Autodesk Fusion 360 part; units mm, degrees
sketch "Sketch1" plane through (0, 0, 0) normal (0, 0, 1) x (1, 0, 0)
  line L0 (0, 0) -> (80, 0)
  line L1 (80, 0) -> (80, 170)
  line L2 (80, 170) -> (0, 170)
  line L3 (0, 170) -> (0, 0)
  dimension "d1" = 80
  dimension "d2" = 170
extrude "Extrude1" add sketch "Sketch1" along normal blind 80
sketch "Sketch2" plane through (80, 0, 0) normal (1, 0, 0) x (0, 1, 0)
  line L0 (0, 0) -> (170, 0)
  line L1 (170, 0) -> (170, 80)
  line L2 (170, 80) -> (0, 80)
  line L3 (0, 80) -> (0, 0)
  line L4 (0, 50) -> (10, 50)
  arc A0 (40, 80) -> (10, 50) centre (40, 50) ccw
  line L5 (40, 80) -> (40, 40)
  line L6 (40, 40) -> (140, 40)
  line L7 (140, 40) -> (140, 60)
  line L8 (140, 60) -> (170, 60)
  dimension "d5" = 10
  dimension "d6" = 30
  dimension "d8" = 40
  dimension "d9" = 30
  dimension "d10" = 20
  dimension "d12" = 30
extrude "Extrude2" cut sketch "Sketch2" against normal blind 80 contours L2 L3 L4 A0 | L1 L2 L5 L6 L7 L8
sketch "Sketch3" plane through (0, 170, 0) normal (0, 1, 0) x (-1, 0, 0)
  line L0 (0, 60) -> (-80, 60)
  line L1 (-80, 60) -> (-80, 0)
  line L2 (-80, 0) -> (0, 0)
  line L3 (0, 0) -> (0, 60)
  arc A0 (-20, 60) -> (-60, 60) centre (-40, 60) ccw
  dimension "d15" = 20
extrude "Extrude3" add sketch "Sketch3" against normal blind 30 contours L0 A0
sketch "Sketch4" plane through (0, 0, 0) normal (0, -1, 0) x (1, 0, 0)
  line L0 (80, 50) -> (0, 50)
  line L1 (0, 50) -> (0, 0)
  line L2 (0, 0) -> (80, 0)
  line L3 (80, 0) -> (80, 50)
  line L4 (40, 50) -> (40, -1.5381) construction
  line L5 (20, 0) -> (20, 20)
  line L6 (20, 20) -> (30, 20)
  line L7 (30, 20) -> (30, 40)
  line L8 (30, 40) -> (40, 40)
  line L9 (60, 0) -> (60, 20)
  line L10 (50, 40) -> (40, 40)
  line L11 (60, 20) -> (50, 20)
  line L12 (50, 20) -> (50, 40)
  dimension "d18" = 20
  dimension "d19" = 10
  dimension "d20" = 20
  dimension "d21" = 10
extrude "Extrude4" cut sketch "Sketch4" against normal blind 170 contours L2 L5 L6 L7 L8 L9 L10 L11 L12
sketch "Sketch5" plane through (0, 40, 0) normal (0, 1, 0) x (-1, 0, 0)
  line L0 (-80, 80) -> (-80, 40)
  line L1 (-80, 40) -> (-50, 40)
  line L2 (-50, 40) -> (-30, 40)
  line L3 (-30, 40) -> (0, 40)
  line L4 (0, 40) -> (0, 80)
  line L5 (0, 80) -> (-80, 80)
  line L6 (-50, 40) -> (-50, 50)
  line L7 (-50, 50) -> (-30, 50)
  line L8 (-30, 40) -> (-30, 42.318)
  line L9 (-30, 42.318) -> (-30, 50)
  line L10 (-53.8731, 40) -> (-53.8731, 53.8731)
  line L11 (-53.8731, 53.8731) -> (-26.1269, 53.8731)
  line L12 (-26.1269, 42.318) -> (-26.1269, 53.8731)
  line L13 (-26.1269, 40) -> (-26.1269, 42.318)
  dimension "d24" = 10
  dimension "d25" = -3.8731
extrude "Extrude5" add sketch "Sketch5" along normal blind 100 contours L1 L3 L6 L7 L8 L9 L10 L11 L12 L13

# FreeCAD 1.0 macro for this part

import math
import FreeCAD as App
import Part
import Sketcher

V = App.Vector

doc = App.newDocument("Part")
params = doc.addObject("Spreadsheet::Sheet", "Params")
for row, (alias, value) in enumerate([
    ("sketch1_width", "80 mm"),
    ("sketch1_height", "170 mm"),
    ("pad1_length", "80 mm"),
    ("sketch2_radius", "30 mm"),
    ("sketch2_width", "10 mm"),
    ("sketch2_width2", "130 mm"),
    ("pocket1_length", "80 mm"),
    ("sketch3_radius", "20 mm"),
    ("pad2_length", "30 mm"),
    ("sketch4_width", "10 mm"),
    ("sketch4_width2", "20 mm"),
    ("pocket2_length", "170 mm"),
    ("sketch5_height", "10 mm"),
    ("sketch5_width", "20 mm"),
    ("pad3_length", "100 mm"),
], start=1):
    params.set(f"A{row}", alias)
    params.set(f"B{row}", "=" + value)
    params.setAlias(f"B{row}", alias)

body = doc.addObject("PartDesign::Body", "Body")

# Sketch on XY plane
sketch1 = body.newObject("Sketcher::SketchObject", "Sketch")
sketch1.AttachmentSupport = (doc.getObject("XY_Plane"), [""])
sketch1.MapMode = "FlatFace"
sketch1.addGeometry(Part.LineSegment(V(0, 170, 0), V(0, 0, 0)), False)
sketch1.addGeometry(Part.LineSegment(V(0, 0, 0), V(80, 0, 0)), False)
sketch1.addGeometry(Part.LineSegment(V(80, 0, 0), V(80, 170, 0)), False)
sketch1.addGeometry(Part.LineSegment(V(80, 170, 0), V(0, 170, 0)), False)
sketch1.addConstraint(Sketcher.Constraint("Coincident", 0, 2, 1, 1))
sketch1.addConstraint(Sketcher.Constraint("Coincident", 1, 2, 2, 1))
sketch1.addConstraint(Sketcher.Constraint("Coincident", 2, 2, 3, 1))
sketch1.addConstraint(Sketcher.Constraint("Coincident", 3, 2, 0, 1))
sketch1.addConstraint(Sketcher.Constraint("Vertical", 0))
sketch1.addConstraint(Sketcher.Constraint("Horizontal", 1))
sketch1.addConstraint(Sketcher.Constraint("Vertical", 2))
sketch1.addConstraint(Sketcher.Constraint("Horizontal", 3))
sketch1.addConstraint(Sketcher.Constraint("Coincident", 0, 2, -1, 1))
sketch1.addConstraint(Sketcher.Constraint("DistanceX", 1, 1, 1, 2, 80.0))
sketch1.addConstraint(Sketcher.Constraint("DistanceY", 0, 2, 0, 1, 170.0))
sketch1.setExpression("Constraints[9]", "Params.sketch1_width")
sketch1.setExpression("Constraints[10]", "Params.sketch1_height")
pad1 = body.newObject("PartDesign::Pad", "Pad")
pad1.Profile = sketch1
pad1.setExpression("Length", "Params.pad1_length")

# Sketch on YZ plane
sketch2 = body.newObject("Sketcher::SketchObject", "Sketch001")
sketch2.AttachmentSupport = (doc.getObject("YZ_Plane"), [""])
sketch2.MapMode = "FlatFace"
sketch2.AttachmentOffset = App.Placement(V(0, 0, 80), App.Rotation())
sketch2.addGeometry(Part.LineSegment(V(0, 80, 0), V(0, 50, 0)), False)
sketch2.addGeometry(Part.LineSegment(V(0, 50, 0), V(10, 50, 0)), False)
sketch2.addGeometry(Part.ArcOfCircle(Part.Circle(V(40, 50, 0), V(0, 0, 1), 30), math.radians(90), math.radians(180)), False)
sketch2.addGeometry(Part.LineSegment(V(40, 80, 0), V(0, 80, 0)), False)
sketch2.addGeometry(Part.LineSegment(V(140, 60, 0), V(170, 60, 0)), False)
sketch2.addGeometry(Part.LineSegment(V(170, 60, 0), V(170, 80, 0)), False)
sketch2.addGeometry(Part.LineSegment(V(170, 80, 0), V(40, 80, 0)), False)
sketch2.addGeometry(Part.LineSegment(V(40, 80, 0), V(40, 40, 0)), False)
sketch2.addGeometry(Part.LineSegment(V(40, 40, 0), V(140, 40, 0)), False)
sketch2.addGeometry(Part.LineSegment(V(140, 40, 0), V(140, 60, 0)), False)
sketch2.addConstraint(Sketcher.Constraint("Coincident", 0, 2, 1, 1))
sketch2.addConstraint(Sketcher.Constraint("Coincident", 1, 2, 2, 2))
sketch2.addConstraint(Sketcher.Constraint("Tangent", 2, 1, 3, 1))
sketch2.addConstraint(Sketcher.Constraint("Coincident", 3, 2, 0, 1))
sketch2.addConstraint(Sketcher.Constraint("Coincident", 4, 2, 5, 1))
sketch2.addConstraint(Sketcher.Constraint("Coincident", 5, 2, 6, 1))
sketch2.addConstraint(Sketcher.Constraint("Coincident", 6, 2, 7, 1))
sketch2.addConstraint(Sketcher.Constraint("Coincident", 7, 2, 8, 1))
sketch2.addConstraint(Sketcher.Constraint("Coincident", 8, 2, 9, 1))
sketch2.addConstraint(Sketcher.Constraint("Coincident", 9, 2, 4, 1))
sketch2.addConstraint(Sketcher.Constraint("Vertical", 0))
sketch2.addConstraint(Sketcher.Constraint("Horizontal", 1))
sketch2.addConstraint(Sketcher.Constraint("Horizontal", 3))
sketch2.addConstraint(Sketcher.Constraint("Horizontal", 4))
sketch2.addConstraint(Sketcher.Constraint("Vertical", 5))
sketch2.addConstraint(Sketcher.Constraint("Horizontal", 6))
sketch2.addConstraint(Sketcher.Constraint("Vertical", 7))
sketch2.addConstraint(Sketcher.Constraint("Horizontal", 8))
sketch2.addConstraint(Sketcher.Constraint("Vertical", 9))
sketch2.addConstraint(Sketcher.Constraint("Coincident", 6, 2, 2, 1))
sketch2.addConstraint(Sketcher.Constraint("PointOnObject", 0, 2, -2))
sketch2.addConstraint(Sketcher.Constraint("Horizontal", 2, 3, 0, 2))
sketch2.addConstraint(Sketcher.Constraint("Equal", 4, 0))
sketch2.addConstraint(Sketcher.Constraint("Equal", 3, 7))
sketch2.addConstraint(Sketcher.Constraint("Equal", 5, 9))
sketch2.addConstraint(Sketcher.Constraint("Radius", 2, 30.0))
sketch2.addConstraint(Sketcher.Constraint("DistanceX", 1, 1, 1, 2, 10.0))
sketch2.addConstraint(Sketcher.Constraint("DistanceY", -1, 1, 7, 2, 40.0))
sketch2.addConstraint(Sketcher.Constraint("DistanceX", 6, 2, 6, 1, 130.0))
sketch2.setExpression("Constraints[25]", "Params.sketch2_radius")
sketch2.setExpression("Constraints[26]", "Params.sketch2_width")
sketch2.setExpression("Constraints[28]", "Params.sketch2_width2")
pocket1 = body.newObject("PartDesign::Pocket", "Pocket")
pocket1.Profile = sketch2
pocket1.setExpression("Length", "Params.pocket1_length")

# Sketch on XZ plane
sketch3 = body.newObject("Sketcher::SketchObject", "Sketch002")
sketch3.AttachmentSupport = (doc.getObject("XZ_Plane"), [""])
sketch3.MapMode = "FlatFace"
sketch3.AttachmentOffset = App.Placement(V(0, 0, -170), App.Rotation())
sketch3.addGeometry(Part.LineSegment(V(60, 60, 0), V(20, 60, 0)), False)
sketch3.addGeometry(Part.ArcOfCircle(Part.Circle(V(40, 60, 0), V(0, 0, 1), 20), math.radians(0), math.radians(180)), False)
sketch3.addConstraint(Sketcher.Constraint("Coincident", 0, 1, 1, 1))
sketch3.addConstraint(Sketcher.Constraint("Coincident", 1, 2, 0, 2))
sketch3.addConstraint(Sketcher.Constraint("Horizontal", 0))
sketch3.addConstraint(Sketcher.Constraint("Horizontal", 1, 3, 0, 1))
sketch3.addConstraint(Sketcher.Constraint("Radius", 1, 20.0))
sketch3.addConstraint(Sketcher.Constraint("DistanceX", -1, 1, 1, 2, 20.0))
sketch3.addConstraint(Sketcher.Constraint("DistanceY", -1, 1, 1, 3, 60.0))
sketch3.setExpression("Constraints[4]", "Params.sketch3_radius")
pad2 = body.newObject("PartDesign::Pad", "Pad001")
pad2.Profile = sketch3
pad2.setExpression("Length", "Params.pad2_length")

# Sketch on XZ plane
sketch4 = body.newObject("Sketcher::SketchObject", "Sketch003")
sketch4.AttachmentSupport = (doc.getObject("XZ_Plane"), [""])
sketch4.MapMode = "FlatFace"
sketch4.addGeometry(Part.LineSegment(V(20, 0, 0), V(60, 0, 0)), False)
sketch4.addGeometry(Part.LineSegment(V(60, 0, 0), V(60, 20, 0)), False)
sketch4.addGeometry(Part.LineSegment(V(60, 20, 0), V(50, 20, 0)), False)
sketch4.addGeometry(Part.LineSegment(V(50, 20, 0), V(50, 40, 0)), False)
sketch4.addGeometry(Part.LineSegment(V(50, 40, 0), V(30, 40, 0)), False)
sketch4.addGeometry(Part.LineSegment(V(30, 40, 0), V(30, 20, 0)), False)
sketch4.addGeometry(Part.LineSegment(V(30, 20, 0), V(20, 20, 0)), False)
sketch4.addGeometry(Part.LineSegment(V(20, 20, 0), V(20, 0, 0)), False)
sketch4.addConstraint(Sketcher.Constraint("Coincident", 0, 2, 1, 1))
sketch4.addConstraint(Sketcher.Constraint("Coincident", 1, 2, 2, 1))
sketch4.addConstraint(Sketcher.Constraint("Coincident", 2, 2, 3, 1))
sketch4.addConstraint(Sketcher.Constraint("Coincident", 3, 2, 4, 1))
sketch4.addConstraint(Sketcher.Constraint("Coincident", 4, 2, 5, 1))
sketch4.addConstraint(Sketcher.Constraint("Coincident", 5, 2, 6, 1))
sketch4.addConstraint(Sketcher.Constraint("Coincident", 6, 2, 7, 1))
sketch4.addConstraint(Sketcher.Constraint("Coincident", 7, 2, 0, 1))
sketch4.addConstraint(Sketcher.Constraint("Horizontal", 0))
sketch4.addConstraint(Sketcher.Constraint("Vertical", 1))
sketch4.addConstraint(Sketcher.Constraint("Horizontal", 2))
sketch4.addConstraint(Sketcher.Constraint("Vertical", 3))
sketch4.addConstraint(Sketcher.Constraint("Horizontal", 4))
sketch4.addConstraint(Sketcher.Constraint("Vertical", 5))
sketch4.addConstraint(Sketcher.Constraint("Horizontal", 6))
sketch4.addConstraint(Sketcher.Constraint("Vertical", 7))
sketch4.addConstraint(Sketcher.Constraint("PointOnObject", 0, 2, -1))
sketch4.addConstraint(Sketcher.Constraint("Horizontal", 2, 2, 5, 2))
sketch4.addConstraint(Sketcher.Constraint("Equal", 2, 6))
sketch4.addConstraint(Sketcher.Constraint("Equal", 4, 1))
sketch4.addConstraint(Sketcher.Constraint("Equal", 1, 3))
sketch4.addConstraint(Sketcher.Constraint("DistanceX", 2, 2, 2, 1, 10.0))
sketch4.addConstraint(Sketcher.Constraint("DistanceX", 4, 2, 4, 1, 20.0))
sketch4.addConstraint(Sketcher.Constraint("DistanceX", -1, 1, 6, 2, 20.0))
sketch4.setExpression("Constraints[21]", "Params.sketch4_width")
sketch4.setExpression("Constraints[22]", "Params.sketch4_width2")
pocket2 = body.newObject("PartDesign::Pocket", "Pocket001")
pocket2.Profile = sketch4
pocket2.setExpression("Length", "Params.pocket2_length")

# Sketch on XZ plane
sketch5 = body.newObject("Sketcher::SketchObject", "Sketch004")
sketch5.AttachmentSupport = (doc.getObject("XZ_Plane"), [""])
sketch5.MapMode = "FlatFace"
sketch5.AttachmentOffset = App.Placement(V(0, 0, -40), App.Rotation())
sketch5.addGeometry(Part.LineSegment(V(53.9, 53.9, 0), V(53.9, 40, 0)), False)
sketch5.addGeometry(Part.LineSegment(V(53.9, 40, 0), V(50, 40, 0)), False)
sketch5.addGeometry(Part.LineSegment(V(50, 40, 0), V(50, 50, 0)), False)
sketch5.addGeometry(Part.LineSegment(V(50, 50, 0), V(30, 50, 0)), False)
sketch5.addGeometry(Part.LineSegment(V(30, 50, 0), V(30, 40, 0)), False)
sketch5.addGeometry(Part.LineSegment(V(30, 40, 0), V(26.1, 40, 0)), False)
sketch5.addGeometry(Part.LineSegment(V(26.1, 40, 0), V(26.1, 53.9, 0)), False)
sketch5.addGeometry(Part.LineSegment(V(26.1, 53.9, 0), V(53.9, 53.9, 0)), False)
sketch5.addConstraint(Sketcher.Constraint("Coincident", 0, 2, 1, 1))
sketch5.addConstraint(Sketcher.Constraint("Coincident", 1, 2, 2, 1))
sketch5.addConstraint(Sketcher.Constraint("Coincident", 2, 2, 3, 1))
sketch5.addConstraint(Sketcher.Constraint("Coincident", 3, 2, 4, 1))
sketch5.addConstraint(Sketcher.Constraint("Coincident", 4, 2, 5, 1))
sketch5.addConstraint(Sketcher.Constraint("Coincident", 5, 2, 6, 1))
sketch5.addConstraint(Sketcher.Constraint("Coincident", 6, 2, 7, 1))
sketch5.addConstraint(Sketcher.Constraint("Coincident", 7, 2, 0, 1))
sketch5.addConstraint(Sketcher.Constraint("Vertical", 0))
sketch5.addConstraint(Sketcher.Constraint("Horizontal", 1))
sketch5.addConstraint(Sketcher.Constraint("Vertical", 2))
sketch5.addConstraint(Sketcher.Constraint("Horizontal", 3))
sketch5.addConstraint(Sketcher.Constraint("Vertical", 4))
sketch5.addConstraint(Sketcher.Constraint("Horizontal", 5))
sketch5.addConstraint(Sketcher.Constraint("Vertical", 6))
sketch5.addConstraint(Sketcher.Constraint("Horizontal", 7))
sketch5.addConstraint(Sketcher.Constraint("Horizontal", 1, 2, 4, 2))
sketch5.addConstraint(Sketcher.Constraint("Equal", 1, 5))
sketch5.addConstraint(Sketcher.Constraint("DistanceY", 2, 1, 2, 2, 10.0))
sketch5.addConstraint(Sketcher.Constraint("DistanceX", 1, 2, 1, 1, 3.873))
sketch5.addConstraint(Sketcher.Constraint("DistanceX", 3, 2, 3, 1, 20.0))
sketch5.addConstraint(Sketcher.Constraint("DistanceY", -1, 1, 0, 2, 40.0))
sketch5.addConstraint(Sketcher.Constraint("DistanceX", -1, 1, 1, 2, 50.0))
sketch5.addConstraint(Sketcher.Constraint("DistanceY", 3, 2, 6, 2, 3.873))
sketch5.setExpression("Constraints[18]", "Params.sketch5_height")
sketch5.setExpression("Constraints[20]", "Params.sketch5_width")
pad3 = body.newObject("PartDesign::Pad", "Pad002")
pad3.Profile = sketch5
pad3.setExpression("Length", "Params.pad3_length")
pad3.Reversed = True

doc.recompute()
